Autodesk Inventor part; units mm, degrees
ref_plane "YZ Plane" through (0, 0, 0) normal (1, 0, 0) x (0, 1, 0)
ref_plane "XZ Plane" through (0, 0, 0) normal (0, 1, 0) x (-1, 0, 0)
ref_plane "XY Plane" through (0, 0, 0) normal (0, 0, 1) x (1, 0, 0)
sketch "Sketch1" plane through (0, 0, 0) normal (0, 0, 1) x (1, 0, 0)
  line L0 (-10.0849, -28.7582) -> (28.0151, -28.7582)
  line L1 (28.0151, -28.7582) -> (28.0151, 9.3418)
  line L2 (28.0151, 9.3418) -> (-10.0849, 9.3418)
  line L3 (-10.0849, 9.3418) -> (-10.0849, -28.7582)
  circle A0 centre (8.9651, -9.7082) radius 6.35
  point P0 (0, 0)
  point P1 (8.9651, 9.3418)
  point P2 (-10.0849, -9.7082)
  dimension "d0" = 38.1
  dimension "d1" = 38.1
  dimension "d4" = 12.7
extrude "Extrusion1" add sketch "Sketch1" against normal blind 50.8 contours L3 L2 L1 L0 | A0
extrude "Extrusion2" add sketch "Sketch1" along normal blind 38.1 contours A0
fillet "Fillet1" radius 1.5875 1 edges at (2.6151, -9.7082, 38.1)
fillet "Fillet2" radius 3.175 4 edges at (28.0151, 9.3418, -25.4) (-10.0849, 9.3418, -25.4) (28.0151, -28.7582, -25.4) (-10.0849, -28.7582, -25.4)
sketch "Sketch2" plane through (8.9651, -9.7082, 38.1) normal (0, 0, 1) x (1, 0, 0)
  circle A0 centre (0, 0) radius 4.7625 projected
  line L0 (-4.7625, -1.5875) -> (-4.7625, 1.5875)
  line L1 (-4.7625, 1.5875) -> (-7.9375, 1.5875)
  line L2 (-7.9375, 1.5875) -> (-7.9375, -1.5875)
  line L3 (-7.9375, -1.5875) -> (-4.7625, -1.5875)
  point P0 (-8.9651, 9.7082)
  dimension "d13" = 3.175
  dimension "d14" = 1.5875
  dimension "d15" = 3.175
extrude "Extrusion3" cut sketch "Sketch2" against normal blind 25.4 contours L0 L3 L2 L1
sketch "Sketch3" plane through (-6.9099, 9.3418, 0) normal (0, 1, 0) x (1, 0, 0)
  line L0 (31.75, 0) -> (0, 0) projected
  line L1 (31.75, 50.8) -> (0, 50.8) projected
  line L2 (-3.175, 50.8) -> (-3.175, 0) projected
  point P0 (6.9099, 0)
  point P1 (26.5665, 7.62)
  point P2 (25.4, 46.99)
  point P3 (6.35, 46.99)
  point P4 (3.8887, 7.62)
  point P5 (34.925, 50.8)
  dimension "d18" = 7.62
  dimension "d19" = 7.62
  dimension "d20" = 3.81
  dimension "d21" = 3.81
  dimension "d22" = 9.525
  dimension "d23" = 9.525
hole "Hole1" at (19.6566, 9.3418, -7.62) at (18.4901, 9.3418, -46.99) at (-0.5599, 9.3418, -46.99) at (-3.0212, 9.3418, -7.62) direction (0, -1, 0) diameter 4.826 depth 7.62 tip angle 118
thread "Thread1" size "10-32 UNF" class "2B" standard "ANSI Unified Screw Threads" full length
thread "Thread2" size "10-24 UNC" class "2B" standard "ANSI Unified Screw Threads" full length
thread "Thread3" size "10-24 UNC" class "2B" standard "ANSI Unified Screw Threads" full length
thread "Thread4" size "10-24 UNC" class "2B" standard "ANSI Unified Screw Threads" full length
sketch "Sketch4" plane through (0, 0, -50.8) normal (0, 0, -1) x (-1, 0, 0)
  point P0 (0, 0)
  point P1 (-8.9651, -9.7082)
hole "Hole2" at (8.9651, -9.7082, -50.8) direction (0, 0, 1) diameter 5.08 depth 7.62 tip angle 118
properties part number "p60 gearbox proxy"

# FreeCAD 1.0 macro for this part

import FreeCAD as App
import Part
import Sketcher
Q = App.Units.Quantity


def edges_at(feature, points):
    """Names of the edges that pass closest to the given points."""
    edges = feature.Shape.Edges
    near = lambda p: min(range(len(edges)), key=lambda i: edges[i].distToShape(Part.Vertex(*p))[0])
    return sorted({f"Edge{near(p) + 1}" for p in points})

doc = App.newDocument("Part")
body = doc.addObject("PartDesign::Body", "Body")

# Sketch on XY plane
sketch1 = body.newObject("Sketcher::SketchObject", "Sketch")
sketch1.AttachmentSupport = (doc.getObject("XY_Plane"), [""])
sketch1.MapMode = "FlatFace"
sketch1.addGeometry(Part.LineSegment(App.Vector(-10, 9, 0), App.Vector(-10, -29, 0)), False)
sketch1.addGeometry(Part.LineSegment(App.Vector(-10, -29, 0), App.Vector(28, -29, 0)), False)
sketch1.addGeometry(Part.LineSegment(App.Vector(28, -29, 0), App.Vector(28, 9, 0)), False)
sketch1.addGeometry(Part.LineSegment(App.Vector(28, 9, 0), App.Vector(-10, 9, 0)), False)
sketch1.addConstraint(Sketcher.Constraint("Coincident", 0, 2, 1, 1))
sketch1.addConstraint(Sketcher.Constraint("Coincident", 1, 2, 2, 1))
sketch1.addConstraint(Sketcher.Constraint("Coincident", 2, 2, 3, 1))
sketch1.addConstraint(Sketcher.Constraint("Coincident", 3, 2, 0, 1))
sketch1.addConstraint(Sketcher.Constraint("Vertical", 0))
sketch1.addConstraint(Sketcher.Constraint("Horizontal", 1))
sketch1.addConstraint(Sketcher.Constraint("Vertical", 2))
sketch1.addConstraint(Sketcher.Constraint("Horizontal", 3))
sketch1.addConstraint(Sketcher.Constraint("Equal", 3, 0))
sketch1.addConstraint(Sketcher.Constraint("DistanceX", 1, 1, 1, 2, Q("1.5 in")))
sketch1.addConstraint(Sketcher.Constraint("DistanceX", 0, 2, -1, 1, 10.085))
sketch1.addConstraint(Sketcher.Constraint("DistanceY", 0, 2, -1, 1, 28.7582))
pad1 = body.newObject("PartDesign::Pad", "Pad")
pad1.Profile = sketch1
pad1.Length = Q("2 in")
pad1.Reversed = True

# Sketch on XY plane
sketch2 = body.newObject("Sketcher::SketchObject", "Sketch001")
sketch2.AttachmentSupport = (doc.getObject("XY_Plane"), [""])
sketch2.MapMode = "FlatFace"
sketch2.addGeometry(Part.Circle(App.Vector(9, -10, 0), App.Vector(0, 0, 1), 6), False)
sketch2.addConstraint(Sketcher.Constraint("Diameter", 0, Q("0.5 in")))
sketch2.addConstraint(Sketcher.Constraint("DistanceX", -1, 1, 0, 3, 8.965))
sketch2.addConstraint(Sketcher.Constraint("DistanceY", 0, 3, -1, 1, 9.7082))
pad2 = body.newObject("PartDesign::Pad", "Pad001")
pad2.Profile = sketch2
pad2.Length = Q("1.5 in")
doc.recompute()

fillet = body.newObject("PartDesign::Fillet", "Fillet")
fillet.Base = (pad2, edges_at(pad2, [(2.615, -9.708, 38.1)]))
fillet.Radius = Q("0.0625 in")
doc.recompute()

fillet2 = body.newObject("PartDesign::Fillet", "Fillet001")
fillet2.Base = (fillet, edges_at(fillet, [
    (28.015, 9.342, -25.4),
    (-10.085, 9.342, -25.4),
    (28.015, -28.758, -25.4),
    (-10.085, -28.758, -25.4),
]))
fillet2.Radius = Q("0.125 in")

# Sketch on XY plane
sketch3 = body.newObject("Sketcher::SketchObject", "Sketch002")
sketch3.AttachmentSupport = (doc.getObject("XY_Plane"), [""])
sketch3.MapMode = "FlatFace"
sketch3.AttachmentOffset = App.Placement(App.Vector(0, 0, 1.5 * 25.4), App.Rotation())
sketch3.addGeometry(Part.LineSegment(App.Vector(4.2, -11.3, 0), App.Vector(4.2, -8.1, 0)), False)
sketch3.addGeometry(Part.LineSegment(App.Vector(4.2, -8.1, 0), App.Vector(1, -8.1, 0)), False)
sketch3.addGeometry(Part.LineSegment(App.Vector(1, -8.1, 0), App.Vector(1, -11.3, 0)), False)
sketch3.addGeometry(Part.LineSegment(App.Vector(1, -11.3, 0), App.Vector(4.2, -11.3, 0)), False)
sketch3.addConstraint(Sketcher.Constraint("Coincident", 0, 2, 1, 1))
sketch3.addConstraint(Sketcher.Constraint("Coincident", 1, 2, 2, 1))
sketch3.addConstraint(Sketcher.Constraint("Coincident", 2, 2, 3, 1))
sketch3.addConstraint(Sketcher.Constraint("Coincident", 3, 2, 0, 1))
sketch3.addConstraint(Sketcher.Constraint("Vertical", 0))
sketch3.addConstraint(Sketcher.Constraint("Horizontal", 1))
sketch3.addConstraint(Sketcher.Constraint("Vertical", 2))
sketch3.addConstraint(Sketcher.Constraint("Horizontal", 3))
sketch3.addConstraint(Sketcher.Constraint("Equal", 3, 0))
sketch3.addConstraint(Sketcher.Constraint("DistanceX", 1, 2, 1, 1, Q("0.125 in")))
sketch3.addConstraint(Sketcher.Constraint("DistanceX", -1, 1, 0, 2, 4.2026))
sketch3.addConstraint(Sketcher.Constraint("DistanceY", 0, 2, -1, 1, 8.1207))
pocket1 = body.newObject("PartDesign::Pocket", "Pocket")
pocket1.Profile = sketch3
pocket1.Length = Q("1 in")

# Sketch on XZ plane
sketch4 = body.newObject("Sketcher::SketchObject", "Sketch003")
sketch4.AttachmentSupport = (doc.getObject("XZ_Plane"), [""])
sketch4.MapMode = "FlatFace"
sketch4.AttachmentOffset = App.Placement(App.Vector(0, 0, -9.3418), App.Rotation())
sketch4.addGeometry(Part.Circle(App.Vector(19.7, -7.6, 0), App.Vector(0, 0, 1), 2.4), False)
sketch4.addGeometry(Part.Circle(App.Vector(18.5, -47, 0), App.Vector(0, 0, 1), 2.4), False)
sketch4.addGeometry(Part.Circle(App.Vector(-0.6, -47, 0), App.Vector(0, 0, 1), 2.4), False)
sketch4.addGeometry(Part.Circle(App.Vector(-3, -7.6, 0), App.Vector(0, 0, 1), 2.4), False)
sketch4.addConstraint(Sketcher.Constraint("Equal", 0, 1))
sketch4.addConstraint(Sketcher.Constraint("Equal", 1, 2))
sketch4.addConstraint(Sketcher.Constraint("Equal", 2, 3))
sketch4.addConstraint(Sketcher.Constraint("Horizontal", 1, 3, 2, 3))
sketch4.addConstraint(Sketcher.Constraint("Horizontal", 0, 3, 3, 3))
sketch4.addConstraint(Sketcher.Constraint("Diameter", 0, Q("0.19 in")))
sketch4.addConstraint(Sketcher.Constraint("DistanceY", 0, 3, -1, 1, Q("0.3 in")))
sketch4.addConstraint(Sketcher.Constraint("DistanceY", 1, 3, -1, 1, Q("1.85 in")))
sketch4.addConstraint(Sketcher.Constraint("DistanceX", 2, 3, 1, 3, Q("0.75 in")))
sketch4.addConstraint(Sketcher.Constraint("DistanceX", 3, 3, 2, 3, Q("0.0969 in")))
sketch4.addConstraint(Sketcher.Constraint("DistanceX", -1, 1, 0, 3, 19.6566))
sketch4.addConstraint(Sketcher.Constraint("DistanceX", -1, 1, 1, 3, 18.49))
doc.recompute()
hole = body.newObject("PartDesign::Hole", "Hole")
hole.Profile = sketch4
hole.ThreadType = "None"
hole.Diameter = Q("0.19 in")
hole.DepthType = "Dimension"
hole.Depth = Q("0.3 in")
hole.DrillPoint = "Angled"
hole.DrillPointAngle = 118
hole.Reversed = True

# Sketch on XY plane
sketch5 = body.newObject("Sketcher::SketchObject", "Sketch004")
sketch5.AttachmentSupport = (doc.getObject("XY_Plane"), [""])
sketch5.MapMode = "FlatFace"
sketch5.AttachmentOffset = App.Placement(App.Vector(0, 0, -2 * 25.4), App.Rotation())
sketch5.addGeometry(Part.Circle(App.Vector(9, -9.7, 0), App.Vector(0, 0, 1), 2.5), False)
sketch5.addConstraint(Sketcher.Constraint("Diameter", 0, Q("0.2 in")))
sketch5.addConstraint(Sketcher.Constraint("DistanceX", -1, 1, 0, 3, 8.965))
sketch5.addConstraint(Sketcher.Constraint("DistanceY", 0, 3, -1, 1, 9.7082))
doc.recompute()
hole2 = body.newObject("PartDesign::Hole", "Hole001")
hole2.Profile = sketch5
hole2.ThreadType = "None"
hole2.Diameter = Q("0.2 in")
hole2.DepthType = "Dimension"
hole2.Depth = Q("0.3 in")
hole2.DrillPoint = "Angled"
hole2.DrillPointAngle = 118
hole2.Reversed = True

doc.recompute()
